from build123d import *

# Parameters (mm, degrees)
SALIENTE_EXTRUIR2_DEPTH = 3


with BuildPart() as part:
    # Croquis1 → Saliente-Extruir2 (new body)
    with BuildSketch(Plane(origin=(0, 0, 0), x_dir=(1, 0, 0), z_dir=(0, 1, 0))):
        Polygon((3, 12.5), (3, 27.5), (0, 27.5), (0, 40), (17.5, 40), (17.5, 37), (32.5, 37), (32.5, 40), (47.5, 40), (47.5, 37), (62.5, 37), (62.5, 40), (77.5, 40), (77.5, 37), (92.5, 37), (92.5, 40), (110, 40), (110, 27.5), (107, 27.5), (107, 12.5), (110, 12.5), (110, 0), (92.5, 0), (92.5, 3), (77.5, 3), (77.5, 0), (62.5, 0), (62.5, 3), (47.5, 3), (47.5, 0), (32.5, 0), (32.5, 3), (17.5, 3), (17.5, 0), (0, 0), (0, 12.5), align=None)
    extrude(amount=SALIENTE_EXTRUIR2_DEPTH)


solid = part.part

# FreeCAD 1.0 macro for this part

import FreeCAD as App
import Part
import Sketcher


def add_polygon(sketch, points):
    """Adds a closed chain of lines whose ends are joined by coincident constraints."""
    first, n = sketch.GeometryCount, len(points)
    for a, b in zip(points, points[1:] + points[:1]):
        sketch.addGeometry(Part.LineSegment(App.Vector(*a, 0), App.Vector(*b, 0)), False)
    for i in range(n):
        sketch.addConstraint(Sketcher.Constraint("Coincident", first + i, 2, first + (i + 1) % n, 1))

doc = App.newDocument("Part")
body = doc.addObject("PartDesign::Body", "Body")

sketch1 = body.newObject("Sketcher::SketchObject", "Sketch")
sketch1.AttachmentSupport = (doc.getObject("XZ_Plane"), [""])
sketch1.MapMode = "FlatFace"
add_polygon(sketch1, [(3, -27.5), (3, -12.5), (0, -12.5), (0, 0), (17.5, 0), (17.5, -3), (32.5, -3), (32.5, 0), (47.5, 0), (47.5, -3), (62.5, -3), (62.5, 0), (77.5, 0), (77.5, -3), (92.5, -3), (92.5, 0), (110, 0), (110, -12.5), (107, -12.5), (107, -27.5), (110, -27.5), (110, -40), (92.5, -40), (92.5, -37), (77.5, -37), (77.5, -40), (62.5, -40), (62.5, -37), (47.5, -37), (47.5, -40), (32.5, -40), (32.5, -37), (17.5, -37), (17.5, -40), (0, -40), (0, -27.5)])
sketch1.addConstraint([
    Sketcher.Constraint("Vertical", 0),
    Sketcher.Constraint("Horizontal", 1),
    Sketcher.Constraint("Vertical", 2),
    Sketcher.Constraint("Horizontal", 3),
    Sketcher.Constraint("Vertical", 4),
    Sketcher.Constraint("Horizontal", 5),
    Sketcher.Constraint("Vertical", 6),
    Sketcher.Constraint("Horizontal", 7),
    Sketcher.Constraint("Vertical", 8),
    Sketcher.Constraint("Horizontal", 9),
    Sketcher.Constraint("Vertical", 10),
    Sketcher.Constraint("Horizontal", 11),
    Sketcher.Constraint("Vertical", 12),
    Sketcher.Constraint("Horizontal", 13),
    Sketcher.Constraint("Vertical", 14),
    Sketcher.Constraint("Horizontal", 15),
    Sketcher.Constraint("Vertical", 16),
    Sketcher.Constraint("Horizontal", 17),
    Sketcher.Constraint("Vertical", 18),
    Sketcher.Constraint("Horizontal", 19),
    Sketcher.Constraint("Vertical", 20),
    Sketcher.Constraint("Horizontal", 21),
    Sketcher.Constraint("Vertical", 22),
    Sketcher.Constraint("Horizontal", 23),
    Sketcher.Constraint("Vertical", 24),
    Sketcher.Constraint("Horizontal", 25),
    Sketcher.Constraint("Vertical", 26),
    Sketcher.Constraint("Horizontal", 27),
    Sketcher.Constraint("Vertical", 28),
    Sketcher.Constraint("Horizontal", 29),
    Sketcher.Constraint("Vertical", 30),
    Sketcher.Constraint("Horizontal", 31),
    Sketcher.Constraint("Vertical", 32),
    Sketcher.Constraint("Horizontal", 33),
    Sketcher.Constraint("Vertical", 34),
    Sketcher.Constraint("Horizontal", 35),
    Sketcher.Constraint("Coincident", 2, 2, -1, 1),
    Sketcher.Constraint("PointOnObject", 6, 2, -1),
    Sketcher.Constraint("PointOnObject", 10, 2, -1),
    Sketcher.Constraint("PointOnObject", 14, 2, -1),
    Sketcher.Constraint("PointOnObject", 33, 2, -2),
    Sketcher.Constraint("Horizontal", 5, 2, 8, 2),
    Sketcher.Constraint("Horizontal", 9, 2, 12, 2),
    Sketcher.Constraint("Horizontal", 1, 2, 16, 2),
    Sketcher.Constraint("Horizontal", 21, 2, 24, 2),
    Sketcher.Constraint("Horizontal", 23, 2, 26, 2),
    Sketcher.Constraint("Horizontal", 25, 2, 28, 2),
    Sketcher.Constraint("Horizontal", 27, 2, 30, 2),
    Sketcher.Constraint("Horizontal", 29, 2, 32, 2),
    Sketcher.Constraint("Horizontal", 19, 2, 34, 2),
    Sketcher.Constraint("Vertical", 16, 2, 19, 2),
    Sketcher.Constraint("Vertical", 14, 2, 21, 2),
    Sketcher.Constraint("Vertical", 12, 2, 23, 2),
    Sketcher.Constraint("Vertical", 10, 2, 25, 2),
    Sketcher.Constraint("Vertical", 8, 2, 27, 2),
    Sketcher.Constraint("Vertical", 6, 2, 29, 2),
    Sketcher.Constraint("Vertical", 4, 2, 31, 2),
    Sketcher.Constraint("Equal", 5, 7),
    Sketcher.Constraint("Equal", 7, 9),
    Sketcher.Constraint("Equal", 9, 11),
    Sketcher.Constraint("Equal", 11, 13),
    Sketcher.Constraint("Equal", 3, 15),
    Sketcher.Constraint("Equal", 1, 17),
    Sketcher.Constraint("Equal", 31, 0),
    Sketcher.Constraint("Equal", 35, 4),
    Sketcher.Constraint("Equal", 16, 20),
    Sketcher.Constraint("Equal", 14, 22),
    Sketcher.Constraint("DistanceX", 1, 2, 1, 1, 3.0),
    Sketcher.Constraint("DistanceX", 5, 1, 5, 2, 15.0),
    Sketcher.Constraint("DistanceX", 3, 1, 3, 2, 17.5),
    Sketcher.Constraint("DistanceY", 2, 1, 2, 2, 12.5),
])
pad1 = body.newObject("PartDesign::Pad", "Pad")
pad1.Profile = sketch1
pad1.Length = 3
pad1.Reversed = True

doc.recompute()
